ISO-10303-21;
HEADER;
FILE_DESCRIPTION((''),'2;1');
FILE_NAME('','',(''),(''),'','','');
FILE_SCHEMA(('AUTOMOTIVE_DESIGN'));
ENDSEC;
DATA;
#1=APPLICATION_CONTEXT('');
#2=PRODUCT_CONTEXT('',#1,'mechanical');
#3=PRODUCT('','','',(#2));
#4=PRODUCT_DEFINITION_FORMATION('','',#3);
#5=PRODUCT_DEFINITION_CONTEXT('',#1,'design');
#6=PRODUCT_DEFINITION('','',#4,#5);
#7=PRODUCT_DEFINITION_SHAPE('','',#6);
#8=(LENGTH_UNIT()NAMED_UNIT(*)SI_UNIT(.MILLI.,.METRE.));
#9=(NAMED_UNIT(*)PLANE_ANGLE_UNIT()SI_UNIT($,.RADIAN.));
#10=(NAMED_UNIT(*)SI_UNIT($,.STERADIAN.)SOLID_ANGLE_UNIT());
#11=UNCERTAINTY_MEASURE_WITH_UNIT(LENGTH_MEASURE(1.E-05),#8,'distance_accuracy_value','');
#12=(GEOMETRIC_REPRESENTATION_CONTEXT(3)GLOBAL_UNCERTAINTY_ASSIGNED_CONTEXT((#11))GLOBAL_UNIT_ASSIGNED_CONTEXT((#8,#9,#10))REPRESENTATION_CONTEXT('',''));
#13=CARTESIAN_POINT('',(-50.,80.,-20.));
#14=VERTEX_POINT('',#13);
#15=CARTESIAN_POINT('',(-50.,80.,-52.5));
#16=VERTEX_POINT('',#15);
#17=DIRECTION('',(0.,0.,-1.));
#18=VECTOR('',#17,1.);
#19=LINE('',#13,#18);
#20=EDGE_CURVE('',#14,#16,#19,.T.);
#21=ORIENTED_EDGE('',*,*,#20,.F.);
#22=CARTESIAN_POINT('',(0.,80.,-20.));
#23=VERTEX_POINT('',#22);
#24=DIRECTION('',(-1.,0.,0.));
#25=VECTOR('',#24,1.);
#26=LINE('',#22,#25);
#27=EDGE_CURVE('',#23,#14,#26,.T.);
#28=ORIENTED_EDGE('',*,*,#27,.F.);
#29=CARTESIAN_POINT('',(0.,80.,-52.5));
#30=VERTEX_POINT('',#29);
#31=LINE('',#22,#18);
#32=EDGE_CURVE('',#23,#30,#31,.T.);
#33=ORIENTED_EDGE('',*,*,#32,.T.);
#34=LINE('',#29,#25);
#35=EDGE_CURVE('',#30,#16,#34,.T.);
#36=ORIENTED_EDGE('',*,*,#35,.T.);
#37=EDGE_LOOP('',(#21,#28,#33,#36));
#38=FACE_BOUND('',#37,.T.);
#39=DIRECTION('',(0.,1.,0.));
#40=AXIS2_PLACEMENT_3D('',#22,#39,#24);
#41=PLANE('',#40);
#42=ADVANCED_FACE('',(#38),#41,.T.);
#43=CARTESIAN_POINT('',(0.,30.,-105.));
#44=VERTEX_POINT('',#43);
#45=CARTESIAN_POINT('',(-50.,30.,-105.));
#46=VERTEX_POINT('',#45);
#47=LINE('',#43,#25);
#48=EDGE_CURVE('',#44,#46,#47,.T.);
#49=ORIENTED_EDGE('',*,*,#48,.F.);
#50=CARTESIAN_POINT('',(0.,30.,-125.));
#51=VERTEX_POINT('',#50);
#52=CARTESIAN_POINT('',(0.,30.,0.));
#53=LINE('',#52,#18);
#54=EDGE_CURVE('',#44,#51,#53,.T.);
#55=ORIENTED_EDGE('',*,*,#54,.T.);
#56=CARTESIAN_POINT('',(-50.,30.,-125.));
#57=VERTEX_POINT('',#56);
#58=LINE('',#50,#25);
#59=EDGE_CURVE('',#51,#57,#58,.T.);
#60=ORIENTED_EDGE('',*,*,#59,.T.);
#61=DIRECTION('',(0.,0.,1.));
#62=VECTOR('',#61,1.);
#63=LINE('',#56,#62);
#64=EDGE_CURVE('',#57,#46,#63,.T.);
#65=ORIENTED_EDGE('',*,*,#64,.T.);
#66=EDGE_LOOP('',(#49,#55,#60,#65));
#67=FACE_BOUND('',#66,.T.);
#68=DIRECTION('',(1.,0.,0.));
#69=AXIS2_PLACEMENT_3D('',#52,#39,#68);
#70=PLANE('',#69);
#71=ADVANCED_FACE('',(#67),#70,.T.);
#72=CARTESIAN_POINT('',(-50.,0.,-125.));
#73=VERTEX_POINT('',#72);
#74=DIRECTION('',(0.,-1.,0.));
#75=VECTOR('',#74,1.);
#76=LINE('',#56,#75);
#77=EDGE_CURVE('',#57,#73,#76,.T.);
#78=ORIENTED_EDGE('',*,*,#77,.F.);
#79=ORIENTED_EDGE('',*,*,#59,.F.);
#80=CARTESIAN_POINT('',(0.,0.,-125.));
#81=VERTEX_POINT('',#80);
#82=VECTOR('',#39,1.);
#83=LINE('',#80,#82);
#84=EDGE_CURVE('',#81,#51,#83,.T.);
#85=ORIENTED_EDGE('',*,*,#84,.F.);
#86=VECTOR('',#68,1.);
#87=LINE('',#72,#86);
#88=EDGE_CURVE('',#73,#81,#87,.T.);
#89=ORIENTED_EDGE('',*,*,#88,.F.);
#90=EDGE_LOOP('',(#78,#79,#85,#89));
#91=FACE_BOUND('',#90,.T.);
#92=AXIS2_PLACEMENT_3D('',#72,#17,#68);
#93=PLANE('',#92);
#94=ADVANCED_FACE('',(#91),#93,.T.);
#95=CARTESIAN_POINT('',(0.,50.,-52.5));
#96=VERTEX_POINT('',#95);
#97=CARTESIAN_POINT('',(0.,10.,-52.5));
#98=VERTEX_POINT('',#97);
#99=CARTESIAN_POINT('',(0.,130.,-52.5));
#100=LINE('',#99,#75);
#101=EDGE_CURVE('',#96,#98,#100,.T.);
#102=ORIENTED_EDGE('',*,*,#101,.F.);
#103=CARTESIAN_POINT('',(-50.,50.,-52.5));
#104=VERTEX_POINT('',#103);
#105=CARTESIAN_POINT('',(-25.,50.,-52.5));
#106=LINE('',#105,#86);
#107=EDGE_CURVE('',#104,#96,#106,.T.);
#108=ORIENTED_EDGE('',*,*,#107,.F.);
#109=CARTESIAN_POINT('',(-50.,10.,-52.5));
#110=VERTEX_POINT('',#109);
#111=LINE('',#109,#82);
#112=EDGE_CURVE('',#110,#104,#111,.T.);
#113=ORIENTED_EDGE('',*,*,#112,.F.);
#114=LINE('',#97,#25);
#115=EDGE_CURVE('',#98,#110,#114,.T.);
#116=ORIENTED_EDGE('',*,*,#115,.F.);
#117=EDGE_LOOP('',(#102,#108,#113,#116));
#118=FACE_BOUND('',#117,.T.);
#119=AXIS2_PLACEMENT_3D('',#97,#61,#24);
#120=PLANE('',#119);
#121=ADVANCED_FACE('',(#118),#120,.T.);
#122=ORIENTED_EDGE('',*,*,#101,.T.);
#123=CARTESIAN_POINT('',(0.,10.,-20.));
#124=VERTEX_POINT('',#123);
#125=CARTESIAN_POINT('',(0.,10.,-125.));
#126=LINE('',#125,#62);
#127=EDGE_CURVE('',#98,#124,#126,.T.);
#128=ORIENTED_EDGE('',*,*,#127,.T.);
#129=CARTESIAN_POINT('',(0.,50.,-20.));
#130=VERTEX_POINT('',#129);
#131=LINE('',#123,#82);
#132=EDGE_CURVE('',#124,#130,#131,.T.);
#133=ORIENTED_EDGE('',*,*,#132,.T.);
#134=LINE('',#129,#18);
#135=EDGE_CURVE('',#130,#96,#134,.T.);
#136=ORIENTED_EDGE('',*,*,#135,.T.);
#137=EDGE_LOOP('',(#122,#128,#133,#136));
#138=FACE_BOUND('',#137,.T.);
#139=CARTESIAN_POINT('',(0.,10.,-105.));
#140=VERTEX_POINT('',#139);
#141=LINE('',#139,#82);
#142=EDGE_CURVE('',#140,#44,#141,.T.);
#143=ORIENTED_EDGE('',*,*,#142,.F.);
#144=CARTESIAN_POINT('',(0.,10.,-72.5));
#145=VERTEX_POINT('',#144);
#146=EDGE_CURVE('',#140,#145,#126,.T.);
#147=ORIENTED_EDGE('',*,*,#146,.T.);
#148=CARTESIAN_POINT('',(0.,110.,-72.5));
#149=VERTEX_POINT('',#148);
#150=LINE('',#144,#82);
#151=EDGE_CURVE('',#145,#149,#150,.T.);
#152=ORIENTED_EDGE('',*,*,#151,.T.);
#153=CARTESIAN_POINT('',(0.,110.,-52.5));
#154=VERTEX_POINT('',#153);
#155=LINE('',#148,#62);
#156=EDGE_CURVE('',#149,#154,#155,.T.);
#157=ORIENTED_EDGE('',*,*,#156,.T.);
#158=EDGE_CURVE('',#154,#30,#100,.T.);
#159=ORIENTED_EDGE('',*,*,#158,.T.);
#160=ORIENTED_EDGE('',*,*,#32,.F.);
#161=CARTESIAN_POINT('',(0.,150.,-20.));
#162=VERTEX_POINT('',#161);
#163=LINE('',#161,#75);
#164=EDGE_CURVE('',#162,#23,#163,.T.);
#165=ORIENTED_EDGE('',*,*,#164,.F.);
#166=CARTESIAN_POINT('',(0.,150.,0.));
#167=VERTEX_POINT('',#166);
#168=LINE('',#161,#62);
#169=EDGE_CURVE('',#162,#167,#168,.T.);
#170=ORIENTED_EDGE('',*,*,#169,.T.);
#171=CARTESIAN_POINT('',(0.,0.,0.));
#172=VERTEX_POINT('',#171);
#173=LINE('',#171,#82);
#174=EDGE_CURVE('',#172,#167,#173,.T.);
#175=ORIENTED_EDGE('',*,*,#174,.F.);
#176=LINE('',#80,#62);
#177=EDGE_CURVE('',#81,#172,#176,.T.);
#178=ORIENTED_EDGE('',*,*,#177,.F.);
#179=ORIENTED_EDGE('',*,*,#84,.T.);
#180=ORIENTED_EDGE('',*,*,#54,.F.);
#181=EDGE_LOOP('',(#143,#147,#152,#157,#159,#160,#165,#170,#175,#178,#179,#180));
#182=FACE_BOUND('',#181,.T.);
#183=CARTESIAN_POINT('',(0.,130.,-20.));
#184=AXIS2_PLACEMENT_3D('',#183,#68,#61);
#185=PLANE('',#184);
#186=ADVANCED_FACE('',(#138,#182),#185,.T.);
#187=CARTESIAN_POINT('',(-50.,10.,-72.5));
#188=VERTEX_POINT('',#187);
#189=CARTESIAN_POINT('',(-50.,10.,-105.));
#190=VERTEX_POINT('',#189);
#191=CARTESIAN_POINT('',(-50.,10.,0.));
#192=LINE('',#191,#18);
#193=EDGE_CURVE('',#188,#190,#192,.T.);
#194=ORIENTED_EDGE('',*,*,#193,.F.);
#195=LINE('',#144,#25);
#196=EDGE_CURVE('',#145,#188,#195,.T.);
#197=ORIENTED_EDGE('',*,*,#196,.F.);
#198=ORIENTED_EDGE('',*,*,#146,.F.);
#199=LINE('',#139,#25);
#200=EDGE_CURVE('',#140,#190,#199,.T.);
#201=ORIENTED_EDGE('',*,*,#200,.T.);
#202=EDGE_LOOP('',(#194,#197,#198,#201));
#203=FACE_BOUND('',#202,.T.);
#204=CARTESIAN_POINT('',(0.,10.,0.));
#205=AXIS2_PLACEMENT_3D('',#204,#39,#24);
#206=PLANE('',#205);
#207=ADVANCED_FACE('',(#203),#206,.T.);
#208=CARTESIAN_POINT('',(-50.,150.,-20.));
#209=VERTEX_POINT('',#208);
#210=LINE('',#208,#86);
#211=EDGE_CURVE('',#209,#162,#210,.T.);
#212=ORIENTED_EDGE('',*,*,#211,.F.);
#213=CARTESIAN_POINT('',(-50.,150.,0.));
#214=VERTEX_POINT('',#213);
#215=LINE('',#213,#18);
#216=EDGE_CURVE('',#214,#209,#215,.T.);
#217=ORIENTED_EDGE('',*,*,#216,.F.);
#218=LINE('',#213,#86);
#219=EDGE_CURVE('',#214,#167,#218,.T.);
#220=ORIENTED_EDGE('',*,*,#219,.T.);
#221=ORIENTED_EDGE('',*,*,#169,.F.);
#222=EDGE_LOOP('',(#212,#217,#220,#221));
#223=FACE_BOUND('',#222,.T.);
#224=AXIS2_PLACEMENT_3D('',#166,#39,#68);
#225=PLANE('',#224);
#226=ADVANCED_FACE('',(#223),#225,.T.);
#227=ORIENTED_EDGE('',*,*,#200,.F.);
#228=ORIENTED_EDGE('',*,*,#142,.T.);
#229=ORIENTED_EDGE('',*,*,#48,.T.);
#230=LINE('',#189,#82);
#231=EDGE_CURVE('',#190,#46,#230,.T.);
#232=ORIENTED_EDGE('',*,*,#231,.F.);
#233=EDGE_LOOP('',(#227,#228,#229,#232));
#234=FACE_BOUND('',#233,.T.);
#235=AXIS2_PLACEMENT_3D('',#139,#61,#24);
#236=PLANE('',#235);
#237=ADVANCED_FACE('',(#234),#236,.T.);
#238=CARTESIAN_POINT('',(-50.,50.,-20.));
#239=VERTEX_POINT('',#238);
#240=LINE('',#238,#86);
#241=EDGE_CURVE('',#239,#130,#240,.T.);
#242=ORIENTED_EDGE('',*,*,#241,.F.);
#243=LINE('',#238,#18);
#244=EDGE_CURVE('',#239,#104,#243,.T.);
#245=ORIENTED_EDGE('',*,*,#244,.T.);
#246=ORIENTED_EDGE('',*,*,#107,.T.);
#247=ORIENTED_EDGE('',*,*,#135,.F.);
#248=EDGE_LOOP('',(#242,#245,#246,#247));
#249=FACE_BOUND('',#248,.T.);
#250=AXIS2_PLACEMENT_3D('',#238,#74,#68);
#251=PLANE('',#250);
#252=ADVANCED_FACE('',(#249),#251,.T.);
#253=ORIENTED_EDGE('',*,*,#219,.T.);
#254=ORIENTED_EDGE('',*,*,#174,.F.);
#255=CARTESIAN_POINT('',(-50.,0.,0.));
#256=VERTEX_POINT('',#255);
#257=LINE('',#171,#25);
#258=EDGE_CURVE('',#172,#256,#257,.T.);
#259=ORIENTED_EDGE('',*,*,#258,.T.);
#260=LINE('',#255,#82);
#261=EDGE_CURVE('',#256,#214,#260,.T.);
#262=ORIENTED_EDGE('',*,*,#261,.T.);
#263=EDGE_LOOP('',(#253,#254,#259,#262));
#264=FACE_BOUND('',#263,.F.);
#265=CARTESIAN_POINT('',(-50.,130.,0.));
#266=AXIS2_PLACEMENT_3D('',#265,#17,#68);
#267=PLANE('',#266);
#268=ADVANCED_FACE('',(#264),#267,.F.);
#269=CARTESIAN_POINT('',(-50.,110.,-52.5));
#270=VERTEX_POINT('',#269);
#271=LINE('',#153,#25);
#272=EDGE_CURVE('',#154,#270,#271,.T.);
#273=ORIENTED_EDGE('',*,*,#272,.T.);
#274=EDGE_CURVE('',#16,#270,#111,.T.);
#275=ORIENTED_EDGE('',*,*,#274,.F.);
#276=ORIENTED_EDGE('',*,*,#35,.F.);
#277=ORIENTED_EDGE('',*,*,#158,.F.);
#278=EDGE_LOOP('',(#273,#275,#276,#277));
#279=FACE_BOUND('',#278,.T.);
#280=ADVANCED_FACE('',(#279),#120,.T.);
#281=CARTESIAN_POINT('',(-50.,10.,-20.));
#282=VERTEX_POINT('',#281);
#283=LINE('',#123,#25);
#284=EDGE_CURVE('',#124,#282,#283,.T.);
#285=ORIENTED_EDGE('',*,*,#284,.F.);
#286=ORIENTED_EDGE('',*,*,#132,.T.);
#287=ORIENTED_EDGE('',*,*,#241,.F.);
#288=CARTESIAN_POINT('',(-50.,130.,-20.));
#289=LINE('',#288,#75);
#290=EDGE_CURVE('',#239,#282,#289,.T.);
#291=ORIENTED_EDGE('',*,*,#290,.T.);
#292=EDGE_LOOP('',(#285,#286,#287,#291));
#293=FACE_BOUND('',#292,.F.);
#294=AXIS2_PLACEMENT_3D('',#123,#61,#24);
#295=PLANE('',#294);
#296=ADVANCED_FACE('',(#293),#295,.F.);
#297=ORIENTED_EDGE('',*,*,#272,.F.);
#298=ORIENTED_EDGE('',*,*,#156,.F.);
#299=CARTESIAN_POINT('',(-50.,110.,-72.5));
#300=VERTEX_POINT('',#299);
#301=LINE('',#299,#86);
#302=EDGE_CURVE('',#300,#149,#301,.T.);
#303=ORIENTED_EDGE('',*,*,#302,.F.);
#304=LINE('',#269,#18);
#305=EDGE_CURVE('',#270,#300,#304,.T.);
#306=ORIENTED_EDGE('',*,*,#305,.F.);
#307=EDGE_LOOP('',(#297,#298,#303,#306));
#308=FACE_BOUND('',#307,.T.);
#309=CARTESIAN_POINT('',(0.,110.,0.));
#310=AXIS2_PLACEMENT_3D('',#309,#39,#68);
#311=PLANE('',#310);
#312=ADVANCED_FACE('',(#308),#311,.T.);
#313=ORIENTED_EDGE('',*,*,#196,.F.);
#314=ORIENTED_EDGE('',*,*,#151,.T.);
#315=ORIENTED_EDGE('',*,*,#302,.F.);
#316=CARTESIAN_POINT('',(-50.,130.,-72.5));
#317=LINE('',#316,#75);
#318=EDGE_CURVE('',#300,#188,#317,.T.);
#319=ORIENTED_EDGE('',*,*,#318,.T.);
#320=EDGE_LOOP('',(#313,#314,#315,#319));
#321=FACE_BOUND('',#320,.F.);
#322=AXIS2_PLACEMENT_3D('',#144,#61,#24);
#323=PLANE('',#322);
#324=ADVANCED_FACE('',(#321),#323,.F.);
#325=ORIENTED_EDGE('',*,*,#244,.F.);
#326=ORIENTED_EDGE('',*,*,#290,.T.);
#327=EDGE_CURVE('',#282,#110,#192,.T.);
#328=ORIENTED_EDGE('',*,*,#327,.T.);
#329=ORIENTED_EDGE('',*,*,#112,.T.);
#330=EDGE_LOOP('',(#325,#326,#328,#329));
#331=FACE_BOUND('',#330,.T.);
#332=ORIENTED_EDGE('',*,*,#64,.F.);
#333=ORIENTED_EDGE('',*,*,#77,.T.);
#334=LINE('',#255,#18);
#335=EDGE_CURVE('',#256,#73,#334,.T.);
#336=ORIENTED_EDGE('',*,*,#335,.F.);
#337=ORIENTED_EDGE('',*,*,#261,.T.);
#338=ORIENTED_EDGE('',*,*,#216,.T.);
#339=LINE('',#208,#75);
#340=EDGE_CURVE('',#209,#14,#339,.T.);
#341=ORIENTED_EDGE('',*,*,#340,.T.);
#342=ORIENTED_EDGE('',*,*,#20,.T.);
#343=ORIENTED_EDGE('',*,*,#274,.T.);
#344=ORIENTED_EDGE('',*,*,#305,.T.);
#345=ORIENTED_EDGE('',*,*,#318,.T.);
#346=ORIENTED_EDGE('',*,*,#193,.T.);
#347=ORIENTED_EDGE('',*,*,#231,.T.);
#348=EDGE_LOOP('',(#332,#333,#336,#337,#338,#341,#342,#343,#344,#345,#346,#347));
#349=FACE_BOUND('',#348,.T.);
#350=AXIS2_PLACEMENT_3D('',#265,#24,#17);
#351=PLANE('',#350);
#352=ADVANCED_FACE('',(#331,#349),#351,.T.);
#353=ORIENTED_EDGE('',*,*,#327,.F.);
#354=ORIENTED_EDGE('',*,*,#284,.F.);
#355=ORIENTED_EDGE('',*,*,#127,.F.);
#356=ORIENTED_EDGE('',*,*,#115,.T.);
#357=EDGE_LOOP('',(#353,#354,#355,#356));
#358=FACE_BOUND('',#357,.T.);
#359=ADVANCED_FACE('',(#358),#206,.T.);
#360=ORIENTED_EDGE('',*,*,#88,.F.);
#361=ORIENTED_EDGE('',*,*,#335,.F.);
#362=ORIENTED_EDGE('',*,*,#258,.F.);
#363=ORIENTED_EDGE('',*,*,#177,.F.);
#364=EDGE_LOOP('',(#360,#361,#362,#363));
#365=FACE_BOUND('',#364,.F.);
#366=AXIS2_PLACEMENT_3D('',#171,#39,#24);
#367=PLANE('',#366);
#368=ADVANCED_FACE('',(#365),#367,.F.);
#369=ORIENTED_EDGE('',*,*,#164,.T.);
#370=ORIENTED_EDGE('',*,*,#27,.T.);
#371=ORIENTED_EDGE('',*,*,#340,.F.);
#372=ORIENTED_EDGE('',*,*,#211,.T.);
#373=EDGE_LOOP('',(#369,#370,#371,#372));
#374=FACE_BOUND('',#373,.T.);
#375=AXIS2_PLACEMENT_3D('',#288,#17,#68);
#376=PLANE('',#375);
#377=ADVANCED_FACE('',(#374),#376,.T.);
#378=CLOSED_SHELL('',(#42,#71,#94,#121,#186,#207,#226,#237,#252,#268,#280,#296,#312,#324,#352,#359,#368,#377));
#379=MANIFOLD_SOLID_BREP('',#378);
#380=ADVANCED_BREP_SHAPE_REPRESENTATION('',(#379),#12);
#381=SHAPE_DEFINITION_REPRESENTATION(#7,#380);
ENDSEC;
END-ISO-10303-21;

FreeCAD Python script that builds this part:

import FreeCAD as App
import Part
import Sketcher
from FreeCAD import Vector
Q = App.Units.Quantity


def add_polygon(sketch, points):
    """Adds a closed chain of lines whose ends are joined by coincident constraints."""
    first, n = sketch.GeometryCount, len(points)
    for a, b in zip(points, points[1:] + points[:1]):
        sketch.addGeometry(Part.LineSegment(App.Vector(*a, 0), App.Vector(*b, 0)), False)
    for i in range(n):
        sketch.addConstraint(Sketcher.Constraint("Coincident", first + i, 2, first + (i + 1) % n, 1))

doc = App.newDocument("Part")
body = doc.addObject("PartDesign::Body", "Body")

# Sketch on XZ plane
sketch1 = body.newObject("Sketcher::SketchObject", "Sketch")
sketch1.AttachmentSupport = (doc.getObject("XZ_Plane"), [""])
sketch1.MapMode = "FlatFace"
add_polygon(sketch1, [(-50, 0), (0, 0), (0, -125), (-50, -125)])  # lines 0-3
sketch1.addConstraint(Sketcher.Constraint("Horizontal", 0))
sketch1.addConstraint(Sketcher.Constraint("Vertical", 1))
sketch1.addConstraint(Sketcher.Constraint("Horizontal", 2))
sketch1.addConstraint(Sketcher.Constraint("Vertical", 3))
sketch1.addConstraint(Sketcher.Constraint("Coincident", 0, 2, -1, 1))
sketch1.addConstraint(Sketcher.Constraint("DistanceX", 0, 1, 0, 2, Q("50 mm")))
sketch1.addConstraint(Sketcher.Constraint("DistanceY", 1, 2, 1, 1, Q("125 mm")))
pad1 = body.newObject("PartDesign::Pad", "Pad")
pad1.Profile = sketch1
pad1.Length = 10
pad1.Reversed = True

# Sketch on XZ plane
sketch2 = body.newObject("Sketcher::SketchObject", "Sketch001")
sketch2.AttachmentSupport = (doc.getObject("XZ_Plane"), [""])
sketch2.MapMode = "FlatFace"
sketch2.AttachmentOffset = App.Placement(Vector(0, 0, -10), App.Rotation())
add_polygon(sketch2, [(0, -125), (-50, -125), (-50, -105), (0, -105)])  # lines 0-3
add_polygon(sketch2, [(0, -72.5), (-50, -72.5), (-50, -52.5), (0, -52.5)])  # lines 4-7
add_polygon(sketch2, [(0, -20), (-50, -20), (-50, 0), (0, 0)])  # lines 8-11
sketch2.addConstraint(Sketcher.Constraint("Horizontal", 0))
sketch2.addConstraint(Sketcher.Constraint("Vertical", 1))
sketch2.addConstraint(Sketcher.Constraint("Horizontal", 2))
sketch2.addConstraint(Sketcher.Constraint("Vertical", 3))
sketch2.addConstraint(Sketcher.Constraint("Horizontal", 4))
sketch2.addConstraint(Sketcher.Constraint("Vertical", 5))
sketch2.addConstraint(Sketcher.Constraint("Horizontal", 6))
sketch2.addConstraint(Sketcher.Constraint("Vertical", 7))
sketch2.addConstraint(Sketcher.Constraint("Horizontal", 8))
sketch2.addConstraint(Sketcher.Constraint("Vertical", 9))
sketch2.addConstraint(Sketcher.Constraint("Horizontal", 10))
sketch2.addConstraint(Sketcher.Constraint("Vertical", 11))
sketch2.addConstraint(Sketcher.Constraint("Coincident", 10, 2, -1, 1))
sketch2.addConstraint(Sketcher.Constraint("PointOnObject", 2, 2, -2))
sketch2.addConstraint(Sketcher.Constraint("PointOnObject", 6, 2, -2))
sketch2.addConstraint(Sketcher.Constraint("Vertical", 1, 2, 4, 2))
sketch2.addConstraint(Sketcher.Constraint("Vertical", 5, 2, 8, 2))
sketch2.addConstraint(Sketcher.Constraint("Equal", 3, 5))
sketch2.addConstraint(Sketcher.Constraint("Equal", 7, 9))
sketch2.addConstraint(Sketcher.Constraint("DistanceY", 1, 1, 1, 2, Q("20 mm")))
sketch2.addConstraint(Sketcher.Constraint("DistanceX", 0, 2, 0, 1, Q("50 mm")))
sketch2.addConstraint(Sketcher.Constraint("DistanceY", 0, 2, -1, 1, Q("125 mm")))
sketch2.addConstraint(Sketcher.Constraint("DistanceY", 4, 2, -1, 1, Q("72.5 mm")))
pad2 = body.newObject("PartDesign::Pad", "Pad001")
pad2.Profile = sketch2
pad2.Length = 20
pad2.Reversed = True

# Sketch on XZ plane
sketch3 = body.newObject("Sketcher::SketchObject", "Sketch002")
sketch3.AttachmentSupport = (doc.getObject("XZ_Plane"), [""])
sketch3.MapMode = "FlatFace"
sketch3.AttachmentOffset = App.Placement(Vector(0, 0, -30), App.Rotation())
add_polygon(sketch3, [(-50, -52.5), (0, -52.5), (0, -72.5), (-50, -72.5)])  # lines 0-3
add_polygon(sketch3, [(0, 0), (0, -20), (-50, -20), (-50, 0)])  # lines 4-7
sketch3.addConstraint(Sketcher.Constraint("Horizontal", 0))
sketch3.addConstraint(Sketcher.Constraint("Vertical", 1))
sketch3.addConstraint(Sketcher.Constraint("Horizontal", 2))
sketch3.addConstraint(Sketcher.Constraint("Vertical", 3))
sketch3.addConstraint(Sketcher.Constraint("Vertical", 4))
sketch3.addConstraint(Sketcher.Constraint("Horizontal", 5))
sketch3.addConstraint(Sketcher.Constraint("Vertical", 6))
sketch3.addConstraint(Sketcher.Constraint("Horizontal", 7))
sketch3.addConstraint(Sketcher.Constraint("Coincident", 7, 2, -1, 1))
sketch3.addConstraint(Sketcher.Constraint("PointOnObject", 0, 2, -2))
sketch3.addConstraint(Sketcher.Constraint("Vertical", 3, 2, 5, 2))
sketch3.addConstraint(Sketcher.Constraint("Equal", 3, 4))
sketch3.addConstraint(Sketcher.Constraint("DistanceX", 0, 1, 0, 2, Q("50 mm")))
sketch3.addConstraint(Sketcher.Constraint("DistanceY", 1, 2, 1, 1, Q("20 mm")))
sketch3.addConstraint(Sketcher.Constraint("DistanceY", 0, 2, -1, 1, Q("52.5 mm")))
pad3 = body.newObject("PartDesign::Pad", "Pad002")
pad3.Profile = sketch3
pad3.Length = 100
pad3.Reversed = True

# Sketch on XY plane
sketch4 = body.newObject("Sketcher::SketchObject", "Sketch003")
sketch4.AttachmentSupport = (doc.getObject("XY_Plane"), [""])
sketch4.MapMode = "FlatFace"
sketch4.AttachmentOffset = App.Placement(Vector(0, 0, -20), App.Rotation())
add_polygon(sketch4, [(0, 80), (0, 50), (-50, 50), (-50, 80)])  # lines 0-3
sketch4.addConstraint(Sketcher.Constraint("Vertical", 0))
sketch4.addConstraint(Sketcher.Constraint("Horizontal", 1))
sketch4.addConstraint(Sketcher.Constraint("Vertical", 2))
sketch4.addConstraint(Sketcher.Constraint("Horizontal", 3))
sketch4.addConstraint(Sketcher.Constraint("PointOnObject", 0, 2, -2))
sketch4.addConstraint(Sketcher.Constraint("DistanceY", 0, 2, 0, 1, Q("30 mm")))
sketch4.addConstraint(Sketcher.Constraint("DistanceX", 1, 2, 1, 1, Q("50 mm")))
sketch4.addConstraint(Sketcher.Constraint("DistanceY", -1, 1, 0, 2, Q("50 mm")))
pad4 = body.newObject("PartDesign::Pad", "Pad003")
pad4.Profile = sketch4
pad4.Length = 40
pad4.Reversed = True

# Sketch on XZ plane
sketch5 = body.newObject("Sketcher::SketchObject", "Sketch004")
sketch5.AttachmentSupport = (doc.getObject("XZ_Plane"), [""])
sketch5.MapMode = "FlatFace"
sketch5.AttachmentOffset = App.Placement(Vector(0, 0, -130), App.Rotation())
add_polygon(sketch5, [(-50, -52.5), (0, -52.5), (0, -72.5), (-50, -72.5)])  # lines 0-3
sketch5.addConstraint(Sketcher.Constraint("Horizontal", 0))
sketch5.addConstraint(Sketcher.Constraint("Vertical", 1))
sketch5.addConstraint(Sketcher.Constraint("Horizontal", 2))
sketch5.addConstraint(Sketcher.Constraint("Vertical", 3))
sketch5.addConstraint(Sketcher.Constraint("PointOnObject", 0, 2, -2))
sketch5.addConstraint(Sketcher.Constraint("DistanceX", 0, 1, 0, 2, Q("50 mm")))
sketch5.addConstraint(Sketcher.Constraint("DistanceY", 1, 2, 1, 1, Q("20 mm")))
sketch5.addConstraint(Sketcher.Constraint("DistanceY", 0, 2, -1, 1, Q("52.5 mm")))
pocket1 = body.newObject("PartDesign::Pocket", "Pocket")
pocket1.Profile = sketch5
pocket1.Length = 20
pocket1.Reversed = True

# Sketch on XZ plane
sketch6 = body.newObject("Sketcher::SketchObject", "Sketch005")
sketch6.AttachmentSupport = (doc.getObject("XZ_Plane"), [""])
sketch6.MapMode = "FlatFace"
sketch6.AttachmentOffset = App.Placement(Vector(0, 0, -130), App.Rotation())
add_polygon(sketch6, [(-50, -20), (-50, 0), (0, 0), (0, -20)])  # lines 0-3
sketch6.addConstraint(Sketcher.Constraint("Vertical", 0))
sketch6.addConstraint(Sketcher.Constraint("Horizontal", 1))
sketch6.addConstraint(Sketcher.Constraint("Vertical", 2))
sketch6.addConstraint(Sketcher.Constraint("Horizontal", 3))
sketch6.addConstraint(Sketcher.Constraint("Coincident", 1, 2, -1, 1))
sketch6.addConstraint(Sketcher.Constraint("DistanceX", 1, 1, 1, 2, Q("50 mm")))
sketch6.addConstraint(Sketcher.Constraint("DistanceY", 0, 1, 0, 2, Q("20 mm")))
pad5 = body.newObject("PartDesign::Pad", "Pad004")
pad5.Profile = sketch6
pad5.Length = 20
pad5.Reversed = True

doc.recompute()
